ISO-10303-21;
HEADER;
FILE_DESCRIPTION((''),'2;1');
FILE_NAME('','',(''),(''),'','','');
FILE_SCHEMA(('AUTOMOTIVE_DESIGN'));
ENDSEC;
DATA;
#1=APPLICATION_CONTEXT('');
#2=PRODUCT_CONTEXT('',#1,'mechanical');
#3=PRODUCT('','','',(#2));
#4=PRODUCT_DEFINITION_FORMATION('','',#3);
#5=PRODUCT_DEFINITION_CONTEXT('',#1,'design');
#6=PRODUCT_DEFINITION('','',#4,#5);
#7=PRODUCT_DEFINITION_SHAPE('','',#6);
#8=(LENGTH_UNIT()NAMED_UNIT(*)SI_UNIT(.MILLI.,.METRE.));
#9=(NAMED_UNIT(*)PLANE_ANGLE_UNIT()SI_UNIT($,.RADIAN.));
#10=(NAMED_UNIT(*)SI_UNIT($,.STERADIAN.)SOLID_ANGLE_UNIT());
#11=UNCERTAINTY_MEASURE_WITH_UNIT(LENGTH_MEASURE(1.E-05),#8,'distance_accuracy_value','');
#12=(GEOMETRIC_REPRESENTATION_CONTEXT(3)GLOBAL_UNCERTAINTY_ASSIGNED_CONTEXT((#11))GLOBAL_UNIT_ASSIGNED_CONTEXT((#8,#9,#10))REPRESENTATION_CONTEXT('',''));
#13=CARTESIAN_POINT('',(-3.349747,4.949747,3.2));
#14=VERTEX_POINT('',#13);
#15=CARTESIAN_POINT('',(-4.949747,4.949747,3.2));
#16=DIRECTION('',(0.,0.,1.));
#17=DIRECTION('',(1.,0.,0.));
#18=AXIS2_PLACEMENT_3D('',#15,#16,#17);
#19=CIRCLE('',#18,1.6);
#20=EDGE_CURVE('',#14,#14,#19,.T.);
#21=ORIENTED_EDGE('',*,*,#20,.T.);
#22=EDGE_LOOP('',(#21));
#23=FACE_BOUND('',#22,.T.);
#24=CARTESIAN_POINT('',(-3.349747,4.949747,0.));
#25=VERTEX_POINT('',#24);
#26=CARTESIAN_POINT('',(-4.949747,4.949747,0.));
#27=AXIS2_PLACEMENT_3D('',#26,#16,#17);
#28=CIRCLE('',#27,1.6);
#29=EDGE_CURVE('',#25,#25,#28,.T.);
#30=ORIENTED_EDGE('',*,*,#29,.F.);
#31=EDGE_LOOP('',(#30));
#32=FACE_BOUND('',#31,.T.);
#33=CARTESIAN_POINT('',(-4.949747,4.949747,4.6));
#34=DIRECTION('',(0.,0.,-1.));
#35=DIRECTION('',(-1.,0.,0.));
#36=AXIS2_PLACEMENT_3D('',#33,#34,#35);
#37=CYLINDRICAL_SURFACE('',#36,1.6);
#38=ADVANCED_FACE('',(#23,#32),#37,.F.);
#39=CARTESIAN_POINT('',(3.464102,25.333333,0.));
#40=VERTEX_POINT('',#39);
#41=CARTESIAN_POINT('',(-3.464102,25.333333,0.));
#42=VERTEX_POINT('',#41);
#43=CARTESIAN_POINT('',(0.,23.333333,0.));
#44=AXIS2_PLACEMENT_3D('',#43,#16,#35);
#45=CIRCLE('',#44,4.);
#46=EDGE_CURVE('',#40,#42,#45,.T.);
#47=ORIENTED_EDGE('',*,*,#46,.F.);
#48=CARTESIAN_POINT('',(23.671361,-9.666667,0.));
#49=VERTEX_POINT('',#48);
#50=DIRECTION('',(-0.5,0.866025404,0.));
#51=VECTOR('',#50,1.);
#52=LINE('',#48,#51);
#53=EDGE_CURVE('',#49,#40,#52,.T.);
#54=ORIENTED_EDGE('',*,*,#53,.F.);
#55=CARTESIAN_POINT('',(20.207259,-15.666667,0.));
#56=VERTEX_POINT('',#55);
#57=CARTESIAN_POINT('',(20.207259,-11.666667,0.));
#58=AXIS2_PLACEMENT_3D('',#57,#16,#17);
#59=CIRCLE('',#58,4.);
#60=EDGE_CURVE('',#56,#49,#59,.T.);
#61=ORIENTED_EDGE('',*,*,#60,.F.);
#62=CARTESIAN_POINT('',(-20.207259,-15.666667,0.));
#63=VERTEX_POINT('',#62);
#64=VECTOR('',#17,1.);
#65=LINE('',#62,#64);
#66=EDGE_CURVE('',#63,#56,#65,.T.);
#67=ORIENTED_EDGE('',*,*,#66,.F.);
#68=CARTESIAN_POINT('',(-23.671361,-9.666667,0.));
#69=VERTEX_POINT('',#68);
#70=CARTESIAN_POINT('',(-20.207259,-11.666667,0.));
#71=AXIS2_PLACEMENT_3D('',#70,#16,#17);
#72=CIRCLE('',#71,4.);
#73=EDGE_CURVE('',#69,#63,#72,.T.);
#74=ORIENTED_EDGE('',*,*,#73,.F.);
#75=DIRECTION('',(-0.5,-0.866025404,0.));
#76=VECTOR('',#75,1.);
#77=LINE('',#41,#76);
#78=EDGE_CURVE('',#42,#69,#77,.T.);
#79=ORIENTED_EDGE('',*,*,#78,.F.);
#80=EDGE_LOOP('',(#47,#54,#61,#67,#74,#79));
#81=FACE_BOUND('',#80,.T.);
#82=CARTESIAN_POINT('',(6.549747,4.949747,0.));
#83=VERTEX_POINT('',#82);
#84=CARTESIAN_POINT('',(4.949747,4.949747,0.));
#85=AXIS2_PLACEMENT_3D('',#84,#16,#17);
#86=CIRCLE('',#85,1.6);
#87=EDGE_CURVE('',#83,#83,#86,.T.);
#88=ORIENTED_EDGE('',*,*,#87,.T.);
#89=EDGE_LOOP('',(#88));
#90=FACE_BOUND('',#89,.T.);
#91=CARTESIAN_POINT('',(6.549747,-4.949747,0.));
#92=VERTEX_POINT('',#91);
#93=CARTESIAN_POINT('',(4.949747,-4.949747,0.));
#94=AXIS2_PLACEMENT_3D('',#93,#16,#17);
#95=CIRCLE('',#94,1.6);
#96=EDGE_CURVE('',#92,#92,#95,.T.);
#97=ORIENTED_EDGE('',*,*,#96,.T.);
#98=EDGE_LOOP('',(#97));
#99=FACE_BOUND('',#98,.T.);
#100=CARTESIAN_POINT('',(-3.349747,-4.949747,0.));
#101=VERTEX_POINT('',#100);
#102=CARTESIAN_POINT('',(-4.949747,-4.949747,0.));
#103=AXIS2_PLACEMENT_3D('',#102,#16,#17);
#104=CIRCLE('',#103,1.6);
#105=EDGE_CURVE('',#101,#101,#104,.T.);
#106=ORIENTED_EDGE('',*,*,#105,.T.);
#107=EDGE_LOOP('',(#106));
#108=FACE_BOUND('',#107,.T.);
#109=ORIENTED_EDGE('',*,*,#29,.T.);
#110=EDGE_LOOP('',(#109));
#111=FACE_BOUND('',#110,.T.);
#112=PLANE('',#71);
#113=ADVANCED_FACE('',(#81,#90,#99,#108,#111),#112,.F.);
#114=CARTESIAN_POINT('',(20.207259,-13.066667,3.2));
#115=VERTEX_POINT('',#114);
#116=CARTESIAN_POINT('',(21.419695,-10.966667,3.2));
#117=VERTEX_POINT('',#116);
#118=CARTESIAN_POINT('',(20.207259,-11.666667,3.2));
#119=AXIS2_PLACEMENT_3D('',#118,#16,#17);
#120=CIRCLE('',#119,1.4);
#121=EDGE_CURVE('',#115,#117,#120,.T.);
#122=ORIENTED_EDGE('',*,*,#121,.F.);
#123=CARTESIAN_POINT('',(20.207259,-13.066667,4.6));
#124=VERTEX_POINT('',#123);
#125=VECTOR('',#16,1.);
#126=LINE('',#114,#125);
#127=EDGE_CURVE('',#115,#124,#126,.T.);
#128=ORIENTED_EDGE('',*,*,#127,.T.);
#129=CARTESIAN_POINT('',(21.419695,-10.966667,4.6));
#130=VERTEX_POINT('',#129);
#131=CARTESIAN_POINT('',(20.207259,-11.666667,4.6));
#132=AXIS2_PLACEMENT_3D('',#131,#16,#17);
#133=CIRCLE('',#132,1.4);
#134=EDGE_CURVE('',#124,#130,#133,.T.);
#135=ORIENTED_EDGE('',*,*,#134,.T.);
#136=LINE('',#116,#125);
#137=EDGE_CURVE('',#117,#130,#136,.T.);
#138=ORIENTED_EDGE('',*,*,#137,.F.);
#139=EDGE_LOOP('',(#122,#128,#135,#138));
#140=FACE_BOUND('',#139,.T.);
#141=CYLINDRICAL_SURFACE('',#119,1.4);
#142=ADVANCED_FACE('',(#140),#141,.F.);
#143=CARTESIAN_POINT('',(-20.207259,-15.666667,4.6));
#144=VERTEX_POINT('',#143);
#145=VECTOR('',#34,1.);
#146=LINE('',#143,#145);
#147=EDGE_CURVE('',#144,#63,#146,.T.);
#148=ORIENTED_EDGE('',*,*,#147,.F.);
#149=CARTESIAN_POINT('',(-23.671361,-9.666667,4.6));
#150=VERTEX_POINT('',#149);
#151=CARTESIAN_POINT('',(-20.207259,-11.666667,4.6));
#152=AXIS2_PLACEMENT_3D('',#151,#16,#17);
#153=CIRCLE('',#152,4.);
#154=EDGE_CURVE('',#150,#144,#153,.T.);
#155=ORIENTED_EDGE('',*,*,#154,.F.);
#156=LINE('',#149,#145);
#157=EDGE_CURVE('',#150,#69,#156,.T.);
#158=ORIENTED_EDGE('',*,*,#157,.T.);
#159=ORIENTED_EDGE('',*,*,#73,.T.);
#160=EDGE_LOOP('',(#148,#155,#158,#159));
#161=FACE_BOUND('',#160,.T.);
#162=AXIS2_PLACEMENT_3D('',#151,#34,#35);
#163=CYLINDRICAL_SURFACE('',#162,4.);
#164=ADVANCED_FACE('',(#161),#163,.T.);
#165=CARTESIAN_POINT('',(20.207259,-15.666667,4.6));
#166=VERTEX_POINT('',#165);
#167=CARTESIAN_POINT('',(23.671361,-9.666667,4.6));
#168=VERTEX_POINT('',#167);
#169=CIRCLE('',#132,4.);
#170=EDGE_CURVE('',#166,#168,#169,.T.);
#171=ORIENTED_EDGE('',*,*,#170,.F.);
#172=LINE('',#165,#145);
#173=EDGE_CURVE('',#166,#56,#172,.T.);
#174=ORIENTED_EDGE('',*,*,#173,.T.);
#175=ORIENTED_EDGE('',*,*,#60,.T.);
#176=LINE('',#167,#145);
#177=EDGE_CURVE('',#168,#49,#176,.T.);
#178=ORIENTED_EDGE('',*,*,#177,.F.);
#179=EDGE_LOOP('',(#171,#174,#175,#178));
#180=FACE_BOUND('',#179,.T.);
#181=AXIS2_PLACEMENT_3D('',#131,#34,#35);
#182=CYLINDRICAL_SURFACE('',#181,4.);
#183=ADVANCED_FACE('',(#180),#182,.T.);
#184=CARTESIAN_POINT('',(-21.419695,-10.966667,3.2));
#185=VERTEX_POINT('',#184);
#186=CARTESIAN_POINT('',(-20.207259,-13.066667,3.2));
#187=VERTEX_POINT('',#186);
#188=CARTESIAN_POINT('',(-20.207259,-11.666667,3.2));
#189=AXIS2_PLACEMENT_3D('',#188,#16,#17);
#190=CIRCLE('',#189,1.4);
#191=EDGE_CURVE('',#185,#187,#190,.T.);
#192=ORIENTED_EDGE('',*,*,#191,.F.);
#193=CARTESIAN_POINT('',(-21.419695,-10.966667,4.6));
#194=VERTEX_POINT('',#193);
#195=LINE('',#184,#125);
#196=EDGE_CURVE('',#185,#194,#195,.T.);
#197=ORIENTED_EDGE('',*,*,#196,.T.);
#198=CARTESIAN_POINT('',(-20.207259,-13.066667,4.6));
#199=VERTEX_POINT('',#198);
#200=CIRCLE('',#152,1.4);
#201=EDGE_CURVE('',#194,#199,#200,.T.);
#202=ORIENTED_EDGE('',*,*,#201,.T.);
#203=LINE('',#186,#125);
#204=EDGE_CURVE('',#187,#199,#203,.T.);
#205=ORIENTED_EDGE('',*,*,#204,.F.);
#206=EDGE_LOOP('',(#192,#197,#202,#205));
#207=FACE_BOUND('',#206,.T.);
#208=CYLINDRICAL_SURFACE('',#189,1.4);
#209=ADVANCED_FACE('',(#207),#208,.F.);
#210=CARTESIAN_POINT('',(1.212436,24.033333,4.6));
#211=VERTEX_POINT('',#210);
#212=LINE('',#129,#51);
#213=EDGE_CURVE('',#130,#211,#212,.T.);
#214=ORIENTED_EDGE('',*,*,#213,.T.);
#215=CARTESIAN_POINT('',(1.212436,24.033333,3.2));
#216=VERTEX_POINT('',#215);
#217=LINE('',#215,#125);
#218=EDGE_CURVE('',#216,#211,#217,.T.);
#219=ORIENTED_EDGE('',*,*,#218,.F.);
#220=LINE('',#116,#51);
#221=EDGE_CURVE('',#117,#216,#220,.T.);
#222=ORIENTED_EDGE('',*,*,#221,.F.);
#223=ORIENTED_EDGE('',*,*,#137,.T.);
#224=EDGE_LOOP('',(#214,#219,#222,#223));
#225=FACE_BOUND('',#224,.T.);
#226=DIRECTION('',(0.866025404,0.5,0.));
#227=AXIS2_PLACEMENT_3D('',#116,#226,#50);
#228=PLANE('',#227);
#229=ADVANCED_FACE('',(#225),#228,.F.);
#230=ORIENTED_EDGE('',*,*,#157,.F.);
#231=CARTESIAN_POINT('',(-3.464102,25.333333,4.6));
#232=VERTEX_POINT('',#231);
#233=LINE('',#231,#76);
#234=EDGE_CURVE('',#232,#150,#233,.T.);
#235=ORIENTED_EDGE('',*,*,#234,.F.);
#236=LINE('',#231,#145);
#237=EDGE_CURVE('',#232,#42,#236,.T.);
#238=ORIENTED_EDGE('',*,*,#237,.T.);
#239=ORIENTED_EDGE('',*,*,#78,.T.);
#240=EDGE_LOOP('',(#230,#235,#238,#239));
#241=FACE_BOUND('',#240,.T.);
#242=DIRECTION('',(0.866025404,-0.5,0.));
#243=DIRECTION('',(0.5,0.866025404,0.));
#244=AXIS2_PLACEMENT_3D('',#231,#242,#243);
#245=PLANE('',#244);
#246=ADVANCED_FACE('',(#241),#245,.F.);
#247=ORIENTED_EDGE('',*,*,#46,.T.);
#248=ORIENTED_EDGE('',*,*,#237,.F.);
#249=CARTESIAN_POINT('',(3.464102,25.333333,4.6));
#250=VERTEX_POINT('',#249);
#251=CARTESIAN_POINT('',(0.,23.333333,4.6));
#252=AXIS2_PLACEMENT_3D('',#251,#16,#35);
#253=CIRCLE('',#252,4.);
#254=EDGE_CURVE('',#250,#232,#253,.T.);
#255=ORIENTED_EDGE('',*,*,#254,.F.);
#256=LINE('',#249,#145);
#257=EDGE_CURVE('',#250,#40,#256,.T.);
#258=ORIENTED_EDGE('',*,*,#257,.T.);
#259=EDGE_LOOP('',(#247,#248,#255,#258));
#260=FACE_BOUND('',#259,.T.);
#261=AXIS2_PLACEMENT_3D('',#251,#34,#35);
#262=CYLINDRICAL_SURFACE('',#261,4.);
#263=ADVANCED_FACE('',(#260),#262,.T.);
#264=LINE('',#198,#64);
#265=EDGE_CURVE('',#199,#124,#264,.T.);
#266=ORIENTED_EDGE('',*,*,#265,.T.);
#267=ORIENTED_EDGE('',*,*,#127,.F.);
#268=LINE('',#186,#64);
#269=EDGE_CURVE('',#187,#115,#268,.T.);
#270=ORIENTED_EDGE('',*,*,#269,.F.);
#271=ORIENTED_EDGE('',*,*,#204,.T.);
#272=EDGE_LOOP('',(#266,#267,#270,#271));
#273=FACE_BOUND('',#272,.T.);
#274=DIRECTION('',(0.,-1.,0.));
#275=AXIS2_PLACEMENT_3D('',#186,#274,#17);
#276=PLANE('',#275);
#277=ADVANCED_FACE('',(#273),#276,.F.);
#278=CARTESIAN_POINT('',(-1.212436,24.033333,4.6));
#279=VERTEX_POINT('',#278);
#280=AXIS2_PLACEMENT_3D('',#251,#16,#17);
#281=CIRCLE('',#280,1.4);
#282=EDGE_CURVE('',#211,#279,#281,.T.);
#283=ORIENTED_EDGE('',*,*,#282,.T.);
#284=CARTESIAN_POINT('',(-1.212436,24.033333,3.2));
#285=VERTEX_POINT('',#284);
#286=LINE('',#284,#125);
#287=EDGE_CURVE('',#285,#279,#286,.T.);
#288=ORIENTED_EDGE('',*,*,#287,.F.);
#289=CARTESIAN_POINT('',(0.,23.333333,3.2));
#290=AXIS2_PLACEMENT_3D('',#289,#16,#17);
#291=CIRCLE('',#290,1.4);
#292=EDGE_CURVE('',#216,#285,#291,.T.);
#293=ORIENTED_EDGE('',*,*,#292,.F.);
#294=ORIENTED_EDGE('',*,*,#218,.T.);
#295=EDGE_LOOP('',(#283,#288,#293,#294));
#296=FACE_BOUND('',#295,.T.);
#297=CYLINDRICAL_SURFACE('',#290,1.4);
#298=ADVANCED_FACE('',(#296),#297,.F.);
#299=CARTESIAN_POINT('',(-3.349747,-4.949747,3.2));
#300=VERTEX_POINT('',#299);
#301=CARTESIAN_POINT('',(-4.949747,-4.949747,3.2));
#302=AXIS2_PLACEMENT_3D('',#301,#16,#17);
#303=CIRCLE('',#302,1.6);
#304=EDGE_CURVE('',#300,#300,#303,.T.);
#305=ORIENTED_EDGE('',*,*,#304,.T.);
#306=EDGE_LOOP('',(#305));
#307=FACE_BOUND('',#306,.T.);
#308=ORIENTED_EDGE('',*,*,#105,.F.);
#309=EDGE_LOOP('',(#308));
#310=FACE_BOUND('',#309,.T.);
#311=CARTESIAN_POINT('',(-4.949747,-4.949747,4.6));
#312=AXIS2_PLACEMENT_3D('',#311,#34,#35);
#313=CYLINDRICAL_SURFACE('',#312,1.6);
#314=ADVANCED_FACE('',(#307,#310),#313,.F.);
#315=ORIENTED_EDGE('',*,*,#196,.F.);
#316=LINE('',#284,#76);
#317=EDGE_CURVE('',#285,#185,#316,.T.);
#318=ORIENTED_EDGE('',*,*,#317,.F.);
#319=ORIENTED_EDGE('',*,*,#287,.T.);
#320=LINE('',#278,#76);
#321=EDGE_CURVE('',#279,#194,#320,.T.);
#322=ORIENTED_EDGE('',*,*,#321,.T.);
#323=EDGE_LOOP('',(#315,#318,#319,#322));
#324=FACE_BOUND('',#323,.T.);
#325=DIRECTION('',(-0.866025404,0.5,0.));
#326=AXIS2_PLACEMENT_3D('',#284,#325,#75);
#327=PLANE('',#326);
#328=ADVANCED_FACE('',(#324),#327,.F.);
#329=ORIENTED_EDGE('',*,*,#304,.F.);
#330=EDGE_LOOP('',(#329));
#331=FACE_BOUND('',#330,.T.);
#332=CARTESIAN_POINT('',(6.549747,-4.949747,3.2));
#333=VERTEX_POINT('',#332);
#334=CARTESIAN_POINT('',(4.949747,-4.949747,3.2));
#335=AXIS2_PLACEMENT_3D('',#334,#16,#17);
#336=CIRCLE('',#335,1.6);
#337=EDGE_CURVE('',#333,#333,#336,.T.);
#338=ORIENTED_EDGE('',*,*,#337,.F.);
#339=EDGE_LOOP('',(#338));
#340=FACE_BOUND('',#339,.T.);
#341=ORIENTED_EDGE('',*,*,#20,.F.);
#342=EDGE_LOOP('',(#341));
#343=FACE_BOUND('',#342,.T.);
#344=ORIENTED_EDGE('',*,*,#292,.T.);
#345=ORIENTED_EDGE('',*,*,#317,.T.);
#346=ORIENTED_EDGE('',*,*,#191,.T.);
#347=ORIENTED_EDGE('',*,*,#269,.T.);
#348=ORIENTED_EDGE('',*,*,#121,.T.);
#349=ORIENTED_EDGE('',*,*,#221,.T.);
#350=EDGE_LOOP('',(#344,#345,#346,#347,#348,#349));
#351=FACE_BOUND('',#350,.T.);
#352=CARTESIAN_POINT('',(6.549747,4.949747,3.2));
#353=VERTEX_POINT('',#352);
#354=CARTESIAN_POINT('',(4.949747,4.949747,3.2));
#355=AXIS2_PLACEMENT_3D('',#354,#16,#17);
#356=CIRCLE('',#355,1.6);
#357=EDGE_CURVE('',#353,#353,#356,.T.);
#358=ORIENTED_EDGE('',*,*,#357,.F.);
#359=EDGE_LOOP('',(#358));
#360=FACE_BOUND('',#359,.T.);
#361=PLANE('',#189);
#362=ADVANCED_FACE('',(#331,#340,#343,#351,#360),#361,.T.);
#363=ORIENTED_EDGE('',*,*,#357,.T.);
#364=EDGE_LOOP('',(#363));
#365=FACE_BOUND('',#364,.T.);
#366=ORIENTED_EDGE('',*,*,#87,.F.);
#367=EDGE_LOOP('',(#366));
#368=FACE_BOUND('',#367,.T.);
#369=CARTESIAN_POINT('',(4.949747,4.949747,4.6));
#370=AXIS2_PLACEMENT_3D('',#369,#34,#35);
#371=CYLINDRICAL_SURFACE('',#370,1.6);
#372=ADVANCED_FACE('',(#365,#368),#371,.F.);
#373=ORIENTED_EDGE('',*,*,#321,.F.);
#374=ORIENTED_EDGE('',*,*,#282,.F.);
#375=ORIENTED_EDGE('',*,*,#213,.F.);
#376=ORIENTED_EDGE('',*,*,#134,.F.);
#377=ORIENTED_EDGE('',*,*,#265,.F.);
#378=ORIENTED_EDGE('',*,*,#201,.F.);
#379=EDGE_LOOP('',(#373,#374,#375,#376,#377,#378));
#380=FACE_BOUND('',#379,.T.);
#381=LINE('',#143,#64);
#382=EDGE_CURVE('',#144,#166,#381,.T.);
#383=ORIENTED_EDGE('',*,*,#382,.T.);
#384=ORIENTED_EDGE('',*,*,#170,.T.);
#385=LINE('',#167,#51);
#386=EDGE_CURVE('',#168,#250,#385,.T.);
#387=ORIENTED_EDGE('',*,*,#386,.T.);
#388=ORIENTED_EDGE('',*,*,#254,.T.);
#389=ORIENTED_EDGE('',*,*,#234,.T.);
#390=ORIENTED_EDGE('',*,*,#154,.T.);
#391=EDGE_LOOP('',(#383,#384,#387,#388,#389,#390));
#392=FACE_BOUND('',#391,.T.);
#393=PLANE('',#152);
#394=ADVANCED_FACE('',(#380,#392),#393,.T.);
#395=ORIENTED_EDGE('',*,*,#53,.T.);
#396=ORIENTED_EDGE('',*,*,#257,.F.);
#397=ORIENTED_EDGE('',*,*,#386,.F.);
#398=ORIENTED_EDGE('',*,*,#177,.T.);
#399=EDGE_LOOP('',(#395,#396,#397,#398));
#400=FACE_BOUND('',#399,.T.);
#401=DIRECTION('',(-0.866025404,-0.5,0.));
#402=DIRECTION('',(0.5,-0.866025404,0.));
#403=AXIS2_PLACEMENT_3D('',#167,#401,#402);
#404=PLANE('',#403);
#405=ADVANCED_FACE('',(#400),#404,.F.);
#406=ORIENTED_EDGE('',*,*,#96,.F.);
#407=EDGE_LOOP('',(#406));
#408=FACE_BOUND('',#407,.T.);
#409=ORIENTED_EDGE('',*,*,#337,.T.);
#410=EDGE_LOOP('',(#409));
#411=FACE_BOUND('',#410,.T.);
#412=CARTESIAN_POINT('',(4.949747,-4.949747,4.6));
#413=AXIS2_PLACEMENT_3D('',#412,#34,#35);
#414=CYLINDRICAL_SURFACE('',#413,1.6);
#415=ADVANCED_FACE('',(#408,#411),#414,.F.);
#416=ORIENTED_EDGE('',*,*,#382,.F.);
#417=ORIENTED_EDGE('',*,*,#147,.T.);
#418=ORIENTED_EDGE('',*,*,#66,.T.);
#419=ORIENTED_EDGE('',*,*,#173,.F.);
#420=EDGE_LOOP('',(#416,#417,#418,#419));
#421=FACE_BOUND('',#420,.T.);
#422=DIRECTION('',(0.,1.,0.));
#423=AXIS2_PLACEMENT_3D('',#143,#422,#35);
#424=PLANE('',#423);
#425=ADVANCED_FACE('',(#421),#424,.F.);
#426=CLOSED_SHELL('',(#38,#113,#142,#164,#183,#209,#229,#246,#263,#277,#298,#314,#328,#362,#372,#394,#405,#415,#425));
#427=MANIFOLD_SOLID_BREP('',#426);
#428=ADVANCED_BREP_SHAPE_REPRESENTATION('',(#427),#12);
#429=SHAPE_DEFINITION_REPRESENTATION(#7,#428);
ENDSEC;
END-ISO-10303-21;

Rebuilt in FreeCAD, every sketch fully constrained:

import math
import FreeCAD as App
import Part
import Sketcher
Q = App.Units.Quantity

doc = App.newDocument("Part")
params = doc.addObject("Spreadsheet::Sheet", "Params")
for row, (alias, value) in enumerate([
    ("sketch1_radius", "4 mm"),
    ("sketch1_diameter", "3.2 mm"),
    ("pad1_length", "4.6 mm"),
    ("sketch2_radius", "1.4 mm"),
    ("pocket1_length", "1.4 mm"),
], start=1):
    params.set(f"A{row}", alias)
    params.set(f"B{row}", "=" + value)
    params.setAlias(f"B{row}", alias)

body = doc.addObject("PartDesign::Body", "Body")

# Sketch on XY plane
sketch1 = doc.addObject("Sketcher::SketchObject", "Sketch")
body.addObject(sketch1)
sketch1.AttachmentSupport = (doc.XY_Plane, [""])
sketch1.MapMode = "FlatFace"
sketch1.addGeometry(Part.LineSegment(App.Vector(-3.464102, 25.333333, 0), App.Vector(-23.671361, -9.666667, 0)), False)
sketch1.addGeometry(Part.ArcOfCircle(Part.Circle(App.Vector(-20.207259, -11.666667, 0), App.Vector(0, 0, 1), 4), math.radians(150), math.radians(270)), False)
sketch1.addGeometry(Part.LineSegment(App.Vector(-20.207259, -15.666667, 0), App.Vector(20.207259, -15.666667, 0)), False)
sketch1.addGeometry(Part.ArcOfCircle(Part.Circle(App.Vector(20.207259, -11.666667, 0), App.Vector(0, 0, 1), 4), math.radians(-90), math.radians(30)), False)
sketch1.addGeometry(Part.LineSegment(App.Vector(23.671361, -9.666667, 0), App.Vector(3.464102, 25.333333, 0)), False)
sketch1.addGeometry(Part.ArcOfCircle(Part.Circle(App.Vector(0, 23.333333, 0), App.Vector(0, 0, 1), 4), math.radians(30), math.radians(150)), False)
sketch1.addGeometry(Part.Circle(App.Vector(-4.949747, -4.949747, 0), App.Vector(0, 0, 1), 1.6), False)
sketch1.addGeometry(Part.Circle(App.Vector(4.949747, -4.949747, 0), App.Vector(0, 0, 1), 1.6), False)
sketch1.addGeometry(Part.Circle(App.Vector(-4.949747, 4.949747, 0), App.Vector(0, 0, 1), 1.6), False)
sketch1.addGeometry(Part.Circle(App.Vector(4.949747, 4.949747, 0), App.Vector(0, 0, 1), 1.6), False)
sketch1.addConstraint(Sketcher.Constraint("Tangent", 0, 2, 1, 1))
sketch1.addConstraint(Sketcher.Constraint("Tangent", 1, 2, 2, 1))
sketch1.addConstraint(Sketcher.Constraint("Tangent", 2, 2, 3, 1))
sketch1.addConstraint(Sketcher.Constraint("Tangent", 3, 2, 4, 1))
sketch1.addConstraint(Sketcher.Constraint("Tangent", 4, 2, 5, 1))
sketch1.addConstraint(Sketcher.Constraint("Tangent", 5, 2, 0, 1))
sketch1.addConstraint(Sketcher.Constraint("Horizontal", 2))
sketch1.addConstraint(Sketcher.Constraint("Equal", 1, 3))
sketch1.addConstraint(Sketcher.Constraint("Equal", 3, 5))
sketch1.addConstraint(Sketcher.Constraint("Equal", 6, 7))
sketch1.addConstraint(Sketcher.Constraint("Equal", 7, 8))
sketch1.addConstraint(Sketcher.Constraint("Equal", 8, 9))
sketch1.addConstraint(Sketcher.Constraint("Symmetric", 7, 3, 8, 3, -1, 1))
sketch1.addConstraint(Sketcher.Constraint("Symmetric", 6, 3, 9, 3, -1, 1))
sketch1.addConstraint(Sketcher.Constraint("Symmetric", 6, 3, 7, 3, -2))
sketch1.addConstraint(Sketcher.Constraint("Symmetric", 0, 2, 3, 2, -2))
sketch1.addConstraint(Sketcher.Constraint("Radius", 1, 4.0))
sketch1.addConstraint(Sketcher.Constraint("Diameter", 6, 3.2))
sketch1.addConstraint(Sketcher.Constraint("Angle", 0, Q("-120 deg")))
sketch1.addConstraint(Sketcher.Constraint("DistanceY", 1, 3, 5, 3, 35.0))
sketch1.addConstraint(Sketcher.Constraint("DistanceX", 1, 3, 6, 3, 15.257512))
sketch1.addConstraint(Sketcher.Constraint("DistanceY", 1, 3, 6, 3, 6.716919))
sketch1.addConstraint(Sketcher.Constraint("DistanceY", 1, 3, -1, 1, 11.666667))
sketch1.setExpression("Constraints[16]", "Params.sketch1_radius")
sketch1.setExpression("Constraints[17]", "Params.sketch1_diameter")
pad1 = doc.addObject("PartDesign::Pad", "Pad")
body.addObject(pad1)
pad1.Profile = sketch1
pad1.setExpression("Length", "Params.pad1_length")

# Sketch on XY plane
sketch2 = doc.addObject("Sketcher::SketchObject", "Sketch001")
body.addObject(sketch2)
sketch2.AttachmentSupport = (doc.XY_Plane, [""])
sketch2.MapMode = "FlatFace"
sketch2.AttachmentOffset = App.Placement(App.Vector(0, 0, 4.6), App.Rotation())
sketch2.addGeometry(Part.LineSegment(App.Vector(-20.207259, -13.066667, 0), App.Vector(20.207259, -13.066667, 0)), False)
sketch2.addGeometry(Part.ArcOfCircle(Part.Circle(App.Vector(20.207259, -11.666667, 0), App.Vector(0, 0, 1), 1.4), math.radians(-90), math.radians(30)), False)
sketch2.addGeometry(Part.LineSegment(App.Vector(21.419695, -10.966667, 0), App.Vector(1.212436, 24.033333, 0)), False)
sketch2.addGeometry(Part.ArcOfCircle(Part.Circle(App.Vector(0, 23.333333, 0), App.Vector(0, 0, 1), 1.4), math.radians(30), math.radians(150)), False)
sketch2.addGeometry(Part.LineSegment(App.Vector(-1.212436, 24.033333, 0), App.Vector(-21.419695, -10.966667, 0)), False)
sketch2.addGeometry(Part.ArcOfCircle(Part.Circle(App.Vector(-20.207259, -11.666667, 0), App.Vector(0, 0, 1), 1.4), math.radians(150), math.radians(270)), False)
sketch2.addConstraint(Sketcher.Constraint("Tangent", 0, 2, 1, 1))
sketch2.addConstraint(Sketcher.Constraint("Tangent", 1, 2, 2, 1))
sketch2.addConstraint(Sketcher.Constraint("Tangent", 2, 2, 3, 1))
sketch2.addConstraint(Sketcher.Constraint("Tangent", 3, 2, 4, 1))
sketch2.addConstraint(Sketcher.Constraint("Tangent", 4, 2, 5, 1))
sketch2.addConstraint(Sketcher.Constraint("Tangent", 5, 2, 0, 1))
sketch2.addConstraint(Sketcher.Constraint("Horizontal", 0))
sketch2.addConstraint(Sketcher.Constraint("Equal", 1, 3))
sketch2.addConstraint(Sketcher.Constraint("Equal", 3, 5))
sketch2.addConstraint(Sketcher.Constraint("Symmetric", 2, 2, 3, 2, -2))
sketch2.addConstraint(Sketcher.Constraint("Radius", 1, 1.4))
sketch2.addConstraint(Sketcher.Constraint("Angle", 2, Q("120 deg")))
sketch2.addConstraint(Sketcher.Constraint("DistanceY", 1, 3, 3, 3, 35.0))
sketch2.addConstraint(Sketcher.Constraint("DistanceY", 1, 3, -1, 1, 11.666667))
sketch2.setExpression("Constraints[10]", "Params.sketch2_radius")
pocket1 = doc.addObject("PartDesign::Pocket", "Pocket")
body.addObject(pocket1)
pocket1.Profile = sketch2
pocket1.setExpression("Length", "Params.pocket1_length")

doc.recompute()
